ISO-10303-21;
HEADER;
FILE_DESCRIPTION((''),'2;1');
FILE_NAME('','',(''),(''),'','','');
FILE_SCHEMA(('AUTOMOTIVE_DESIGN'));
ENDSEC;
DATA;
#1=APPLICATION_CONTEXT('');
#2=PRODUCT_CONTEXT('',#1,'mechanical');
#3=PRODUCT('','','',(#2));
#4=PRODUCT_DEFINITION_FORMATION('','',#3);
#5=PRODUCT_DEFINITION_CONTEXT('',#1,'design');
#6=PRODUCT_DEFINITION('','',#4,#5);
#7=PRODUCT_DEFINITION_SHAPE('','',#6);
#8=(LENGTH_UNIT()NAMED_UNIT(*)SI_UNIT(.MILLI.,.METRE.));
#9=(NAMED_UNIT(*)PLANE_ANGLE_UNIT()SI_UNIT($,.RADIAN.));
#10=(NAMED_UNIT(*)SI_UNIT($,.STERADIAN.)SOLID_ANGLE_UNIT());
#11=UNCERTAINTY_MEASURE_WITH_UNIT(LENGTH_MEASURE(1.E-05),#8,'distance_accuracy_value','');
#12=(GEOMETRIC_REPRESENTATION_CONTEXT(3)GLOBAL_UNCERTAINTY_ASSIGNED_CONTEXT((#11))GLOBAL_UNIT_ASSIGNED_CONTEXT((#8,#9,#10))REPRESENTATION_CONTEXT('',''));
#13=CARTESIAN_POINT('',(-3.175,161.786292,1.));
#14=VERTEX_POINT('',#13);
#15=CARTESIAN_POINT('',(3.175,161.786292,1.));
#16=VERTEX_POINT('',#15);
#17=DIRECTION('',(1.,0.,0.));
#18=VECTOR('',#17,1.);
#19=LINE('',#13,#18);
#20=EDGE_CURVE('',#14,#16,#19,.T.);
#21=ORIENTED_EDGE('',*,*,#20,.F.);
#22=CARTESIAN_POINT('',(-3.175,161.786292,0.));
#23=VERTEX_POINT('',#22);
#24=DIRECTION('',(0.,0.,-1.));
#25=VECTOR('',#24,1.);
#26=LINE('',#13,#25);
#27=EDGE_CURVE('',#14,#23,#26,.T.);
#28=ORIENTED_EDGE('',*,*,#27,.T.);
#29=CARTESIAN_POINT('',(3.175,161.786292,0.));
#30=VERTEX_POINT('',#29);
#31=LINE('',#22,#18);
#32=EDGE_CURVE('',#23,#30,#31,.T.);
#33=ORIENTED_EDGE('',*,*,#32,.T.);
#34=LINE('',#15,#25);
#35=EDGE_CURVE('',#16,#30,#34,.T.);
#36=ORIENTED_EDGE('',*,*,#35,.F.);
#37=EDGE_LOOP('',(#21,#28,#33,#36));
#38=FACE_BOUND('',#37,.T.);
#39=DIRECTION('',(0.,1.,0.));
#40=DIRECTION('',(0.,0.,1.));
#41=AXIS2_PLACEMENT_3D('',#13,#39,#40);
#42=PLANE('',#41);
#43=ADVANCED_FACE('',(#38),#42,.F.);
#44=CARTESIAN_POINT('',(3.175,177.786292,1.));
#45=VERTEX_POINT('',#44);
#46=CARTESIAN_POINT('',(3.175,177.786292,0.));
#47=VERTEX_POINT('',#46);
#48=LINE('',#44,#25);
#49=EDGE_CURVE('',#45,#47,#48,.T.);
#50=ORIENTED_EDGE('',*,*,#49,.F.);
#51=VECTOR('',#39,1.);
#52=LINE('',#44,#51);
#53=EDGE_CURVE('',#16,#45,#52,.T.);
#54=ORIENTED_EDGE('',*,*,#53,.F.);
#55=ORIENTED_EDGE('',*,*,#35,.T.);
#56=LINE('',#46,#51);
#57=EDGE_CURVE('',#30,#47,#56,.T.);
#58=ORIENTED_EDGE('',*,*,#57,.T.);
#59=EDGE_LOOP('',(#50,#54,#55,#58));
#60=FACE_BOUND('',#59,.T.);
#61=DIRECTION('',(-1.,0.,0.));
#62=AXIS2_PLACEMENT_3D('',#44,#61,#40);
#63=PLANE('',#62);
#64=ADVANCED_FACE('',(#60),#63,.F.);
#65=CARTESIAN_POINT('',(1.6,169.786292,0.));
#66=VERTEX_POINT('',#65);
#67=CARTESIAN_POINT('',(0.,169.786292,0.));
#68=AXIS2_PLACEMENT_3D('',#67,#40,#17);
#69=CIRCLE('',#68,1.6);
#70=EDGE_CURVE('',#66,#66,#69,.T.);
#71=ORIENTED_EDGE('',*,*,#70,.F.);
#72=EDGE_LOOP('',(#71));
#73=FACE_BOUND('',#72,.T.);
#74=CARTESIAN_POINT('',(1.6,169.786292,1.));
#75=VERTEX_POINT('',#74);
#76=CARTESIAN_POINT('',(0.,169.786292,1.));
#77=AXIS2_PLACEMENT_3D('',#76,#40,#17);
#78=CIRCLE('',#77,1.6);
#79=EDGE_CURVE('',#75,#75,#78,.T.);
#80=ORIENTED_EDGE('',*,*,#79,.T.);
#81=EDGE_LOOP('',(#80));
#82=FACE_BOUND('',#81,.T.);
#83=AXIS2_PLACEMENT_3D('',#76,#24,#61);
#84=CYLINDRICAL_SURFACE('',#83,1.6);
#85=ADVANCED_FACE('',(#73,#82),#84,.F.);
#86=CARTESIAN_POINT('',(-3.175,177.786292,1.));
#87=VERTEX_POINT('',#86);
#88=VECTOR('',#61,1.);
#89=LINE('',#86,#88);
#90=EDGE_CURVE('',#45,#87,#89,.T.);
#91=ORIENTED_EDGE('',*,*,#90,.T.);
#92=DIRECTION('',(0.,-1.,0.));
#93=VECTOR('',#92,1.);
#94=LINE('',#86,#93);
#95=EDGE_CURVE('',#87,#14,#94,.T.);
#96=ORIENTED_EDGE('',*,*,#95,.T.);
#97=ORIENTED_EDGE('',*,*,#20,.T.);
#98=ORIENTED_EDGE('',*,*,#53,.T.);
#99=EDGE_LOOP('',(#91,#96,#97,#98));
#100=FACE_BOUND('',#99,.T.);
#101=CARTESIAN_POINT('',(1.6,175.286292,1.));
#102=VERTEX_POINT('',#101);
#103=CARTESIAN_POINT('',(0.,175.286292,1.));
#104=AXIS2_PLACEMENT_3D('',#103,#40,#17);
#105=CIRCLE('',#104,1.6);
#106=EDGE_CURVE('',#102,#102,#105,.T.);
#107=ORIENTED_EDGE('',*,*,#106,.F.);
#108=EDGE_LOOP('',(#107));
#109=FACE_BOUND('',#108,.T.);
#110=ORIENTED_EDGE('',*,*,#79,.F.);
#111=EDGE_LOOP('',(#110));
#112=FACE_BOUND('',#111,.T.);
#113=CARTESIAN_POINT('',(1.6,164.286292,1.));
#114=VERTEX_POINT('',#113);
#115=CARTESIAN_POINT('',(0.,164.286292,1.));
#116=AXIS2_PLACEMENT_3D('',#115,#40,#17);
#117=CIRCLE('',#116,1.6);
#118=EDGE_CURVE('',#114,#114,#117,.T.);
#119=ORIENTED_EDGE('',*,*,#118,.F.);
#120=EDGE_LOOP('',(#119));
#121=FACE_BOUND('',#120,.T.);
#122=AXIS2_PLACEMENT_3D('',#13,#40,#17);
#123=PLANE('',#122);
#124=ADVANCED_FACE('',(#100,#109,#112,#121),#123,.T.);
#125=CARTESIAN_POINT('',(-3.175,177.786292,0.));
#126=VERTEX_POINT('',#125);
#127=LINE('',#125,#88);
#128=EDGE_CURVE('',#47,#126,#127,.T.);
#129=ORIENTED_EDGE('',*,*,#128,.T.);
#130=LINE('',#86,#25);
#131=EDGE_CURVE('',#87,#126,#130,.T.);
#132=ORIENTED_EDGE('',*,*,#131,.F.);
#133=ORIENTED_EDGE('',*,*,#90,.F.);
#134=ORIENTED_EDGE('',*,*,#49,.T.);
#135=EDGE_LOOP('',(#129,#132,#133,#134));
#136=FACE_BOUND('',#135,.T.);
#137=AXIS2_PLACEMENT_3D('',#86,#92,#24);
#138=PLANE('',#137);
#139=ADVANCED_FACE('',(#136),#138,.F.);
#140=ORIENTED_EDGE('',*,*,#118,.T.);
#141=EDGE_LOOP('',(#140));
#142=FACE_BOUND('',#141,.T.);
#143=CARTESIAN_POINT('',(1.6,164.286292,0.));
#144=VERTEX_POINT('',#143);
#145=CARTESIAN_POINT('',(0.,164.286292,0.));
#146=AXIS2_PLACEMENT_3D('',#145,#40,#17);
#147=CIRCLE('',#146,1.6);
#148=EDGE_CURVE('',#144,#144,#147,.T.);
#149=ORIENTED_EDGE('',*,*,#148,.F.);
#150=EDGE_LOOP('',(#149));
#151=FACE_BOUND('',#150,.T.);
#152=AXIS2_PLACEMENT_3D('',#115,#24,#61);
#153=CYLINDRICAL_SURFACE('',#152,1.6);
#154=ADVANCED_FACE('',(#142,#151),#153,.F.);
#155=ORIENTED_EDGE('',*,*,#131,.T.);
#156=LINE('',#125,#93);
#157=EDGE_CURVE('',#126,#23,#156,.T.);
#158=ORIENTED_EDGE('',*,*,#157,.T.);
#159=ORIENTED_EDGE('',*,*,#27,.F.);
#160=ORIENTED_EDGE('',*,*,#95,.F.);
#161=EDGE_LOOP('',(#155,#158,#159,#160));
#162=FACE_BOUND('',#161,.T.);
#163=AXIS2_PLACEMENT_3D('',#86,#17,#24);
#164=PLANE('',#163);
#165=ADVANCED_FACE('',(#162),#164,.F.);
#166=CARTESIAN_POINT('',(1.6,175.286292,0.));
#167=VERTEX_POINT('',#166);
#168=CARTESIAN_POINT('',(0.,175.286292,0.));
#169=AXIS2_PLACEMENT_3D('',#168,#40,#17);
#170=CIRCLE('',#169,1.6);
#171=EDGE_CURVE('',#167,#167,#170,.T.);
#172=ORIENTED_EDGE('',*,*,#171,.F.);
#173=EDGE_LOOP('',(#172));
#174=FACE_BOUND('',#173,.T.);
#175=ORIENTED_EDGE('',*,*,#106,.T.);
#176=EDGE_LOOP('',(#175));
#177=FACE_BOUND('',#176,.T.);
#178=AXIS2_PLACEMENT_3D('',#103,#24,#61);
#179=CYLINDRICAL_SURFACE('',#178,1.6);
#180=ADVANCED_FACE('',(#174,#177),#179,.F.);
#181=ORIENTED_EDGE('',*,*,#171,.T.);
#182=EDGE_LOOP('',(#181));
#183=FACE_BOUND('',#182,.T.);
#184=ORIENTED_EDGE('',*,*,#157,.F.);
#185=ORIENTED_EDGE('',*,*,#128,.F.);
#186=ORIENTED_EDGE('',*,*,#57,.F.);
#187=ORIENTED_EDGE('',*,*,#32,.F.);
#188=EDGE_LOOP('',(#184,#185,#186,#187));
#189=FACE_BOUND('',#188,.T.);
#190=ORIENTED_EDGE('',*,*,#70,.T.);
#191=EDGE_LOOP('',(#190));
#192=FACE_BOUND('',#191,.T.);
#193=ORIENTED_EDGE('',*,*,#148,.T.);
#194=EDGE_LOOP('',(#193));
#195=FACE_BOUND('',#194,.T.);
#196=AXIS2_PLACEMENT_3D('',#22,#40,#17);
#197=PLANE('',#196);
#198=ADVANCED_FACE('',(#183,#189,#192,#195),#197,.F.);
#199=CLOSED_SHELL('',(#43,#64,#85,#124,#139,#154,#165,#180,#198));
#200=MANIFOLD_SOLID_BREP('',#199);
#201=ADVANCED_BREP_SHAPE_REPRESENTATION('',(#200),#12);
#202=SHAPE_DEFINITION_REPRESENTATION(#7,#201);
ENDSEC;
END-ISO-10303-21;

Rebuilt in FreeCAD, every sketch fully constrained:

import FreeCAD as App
import Part
import Sketcher
from FreeCAD import Vector
Q = App.Units.Quantity

doc = App.newDocument("Part")
params = doc.addObject("Spreadsheet::Sheet", "Params")
for row, (alias, value) in enumerate([
    ("sketch1_diameter", "3.2 mm"),
    ("sketch1_height", "16 mm"),
    ("sketch1_width", "6.35 mm"),
    ("pad1_length", "1 mm"),
], start=1):
    params.set(f"A{row}", alias)
    params.set(f"B{row}", "=" + value)
    params.setAlias(f"B{row}", alias)

body = doc.addObject("PartDesign::Body", "Body")

sketch1 = doc.addObject("Sketcher::SketchObject", "Sketch")
body.addObject(sketch1)
sketch1.AttachmentSupport = (doc.XY_Plane, [""])
sketch1.MapMode = "FlatFace"
sketch1.addGeometry(Part.LineSegment(Vector(-3.2, 177.8, 0), Vector(-3.2, 161.8, 0)), False)
sketch1.addGeometry(Part.LineSegment(Vector(-3.2, 161.8, 0), Vector(3.2, 161.8, 0)), False)
sketch1.addGeometry(Part.LineSegment(Vector(3.2, 161.8, 0), Vector(3.2, 177.8, 0)), False)
sketch1.addGeometry(Part.LineSegment(Vector(3.2, 177.8, 0), Vector(-3.2, 177.8, 0)), False)
sketch1.addGeometry(Part.Circle(Vector(0, 164.3, 0), Vector(0, 0, 1), 1.6), False)
sketch1.addGeometry(Part.Circle(Vector(0, 169.8, 0), Vector(0, 0, 1), 1.6), False)
sketch1.addGeometry(Part.Circle(Vector(0, 175.3, 0), Vector(0, 0, 1), 1.6), False)
sketch1.addConstraint(Sketcher.Constraint("Coincident", 0, 2, 1, 1))
sketch1.addConstraint(Sketcher.Constraint("Coincident", 1, 2, 2, 1))
sketch1.addConstraint(Sketcher.Constraint("Coincident", 2, 2, 3, 1))
sketch1.addConstraint(Sketcher.Constraint("Coincident", 3, 2, 0, 1))
sketch1.addConstraint(Sketcher.Constraint("Vertical", 0))
sketch1.addConstraint(Sketcher.Constraint("Horizontal", 1))
sketch1.addConstraint(Sketcher.Constraint("Vertical", 2))
sketch1.addConstraint(Sketcher.Constraint("Horizontal", 3))
sketch1.addConstraint(Sketcher.Constraint("Equal", 4, 5))
sketch1.addConstraint(Sketcher.Constraint("Equal", 5, 6))
sketch1.addConstraint(Sketcher.Constraint("PointOnObject", 4, 3, -2))
sketch1.addConstraint(Sketcher.Constraint("PointOnObject", 5, 3, -2))
sketch1.addConstraint(Sketcher.Constraint("PointOnObject", 6, 3, -2))
sketch1.addConstraint(Sketcher.Constraint("Diameter", 4, Q("3.2 mm")))
sketch1.addConstraint(Sketcher.Constraint("DistanceY", 0, 2, 0, 1, Q("16 mm")))
sketch1.addConstraint(Sketcher.Constraint("DistanceY", 4, 3, 6, 3, Q("11 mm")))
sketch1.addConstraint(Sketcher.Constraint("DistanceY", 0, 2, 5, 3, Q("8 mm")))
sketch1.addConstraint(Sketcher.Constraint("DistanceX", 1, 1, 1, 2, Q("6.35 mm")))
sketch1.addConstraint(Sketcher.Constraint("DistanceY", 4, 3, 5, 3, Q("5.5 mm")))
sketch1.addConstraint(Sketcher.Constraint("DistanceX", 0, 2, -1, 1, Q("3.175 mm")))
sketch1.addConstraint(Sketcher.Constraint("DistanceY", -1, 1, 4, 3, Q("164.286292 mm")))
sketch1.setExpression("Constraints[13]", "Params.sketch1_diameter")
sketch1.setExpression("Constraints[14]", "Params.sketch1_height")
sketch1.setExpression("Constraints[17]", "Params.sketch1_width")
pad1 = doc.addObject("PartDesign::Pad", "Pad")
body.addObject(pad1)
pad1.Profile = sketch1
pad1.setExpression("Length", "Params.pad1_length")

doc.recompute()
